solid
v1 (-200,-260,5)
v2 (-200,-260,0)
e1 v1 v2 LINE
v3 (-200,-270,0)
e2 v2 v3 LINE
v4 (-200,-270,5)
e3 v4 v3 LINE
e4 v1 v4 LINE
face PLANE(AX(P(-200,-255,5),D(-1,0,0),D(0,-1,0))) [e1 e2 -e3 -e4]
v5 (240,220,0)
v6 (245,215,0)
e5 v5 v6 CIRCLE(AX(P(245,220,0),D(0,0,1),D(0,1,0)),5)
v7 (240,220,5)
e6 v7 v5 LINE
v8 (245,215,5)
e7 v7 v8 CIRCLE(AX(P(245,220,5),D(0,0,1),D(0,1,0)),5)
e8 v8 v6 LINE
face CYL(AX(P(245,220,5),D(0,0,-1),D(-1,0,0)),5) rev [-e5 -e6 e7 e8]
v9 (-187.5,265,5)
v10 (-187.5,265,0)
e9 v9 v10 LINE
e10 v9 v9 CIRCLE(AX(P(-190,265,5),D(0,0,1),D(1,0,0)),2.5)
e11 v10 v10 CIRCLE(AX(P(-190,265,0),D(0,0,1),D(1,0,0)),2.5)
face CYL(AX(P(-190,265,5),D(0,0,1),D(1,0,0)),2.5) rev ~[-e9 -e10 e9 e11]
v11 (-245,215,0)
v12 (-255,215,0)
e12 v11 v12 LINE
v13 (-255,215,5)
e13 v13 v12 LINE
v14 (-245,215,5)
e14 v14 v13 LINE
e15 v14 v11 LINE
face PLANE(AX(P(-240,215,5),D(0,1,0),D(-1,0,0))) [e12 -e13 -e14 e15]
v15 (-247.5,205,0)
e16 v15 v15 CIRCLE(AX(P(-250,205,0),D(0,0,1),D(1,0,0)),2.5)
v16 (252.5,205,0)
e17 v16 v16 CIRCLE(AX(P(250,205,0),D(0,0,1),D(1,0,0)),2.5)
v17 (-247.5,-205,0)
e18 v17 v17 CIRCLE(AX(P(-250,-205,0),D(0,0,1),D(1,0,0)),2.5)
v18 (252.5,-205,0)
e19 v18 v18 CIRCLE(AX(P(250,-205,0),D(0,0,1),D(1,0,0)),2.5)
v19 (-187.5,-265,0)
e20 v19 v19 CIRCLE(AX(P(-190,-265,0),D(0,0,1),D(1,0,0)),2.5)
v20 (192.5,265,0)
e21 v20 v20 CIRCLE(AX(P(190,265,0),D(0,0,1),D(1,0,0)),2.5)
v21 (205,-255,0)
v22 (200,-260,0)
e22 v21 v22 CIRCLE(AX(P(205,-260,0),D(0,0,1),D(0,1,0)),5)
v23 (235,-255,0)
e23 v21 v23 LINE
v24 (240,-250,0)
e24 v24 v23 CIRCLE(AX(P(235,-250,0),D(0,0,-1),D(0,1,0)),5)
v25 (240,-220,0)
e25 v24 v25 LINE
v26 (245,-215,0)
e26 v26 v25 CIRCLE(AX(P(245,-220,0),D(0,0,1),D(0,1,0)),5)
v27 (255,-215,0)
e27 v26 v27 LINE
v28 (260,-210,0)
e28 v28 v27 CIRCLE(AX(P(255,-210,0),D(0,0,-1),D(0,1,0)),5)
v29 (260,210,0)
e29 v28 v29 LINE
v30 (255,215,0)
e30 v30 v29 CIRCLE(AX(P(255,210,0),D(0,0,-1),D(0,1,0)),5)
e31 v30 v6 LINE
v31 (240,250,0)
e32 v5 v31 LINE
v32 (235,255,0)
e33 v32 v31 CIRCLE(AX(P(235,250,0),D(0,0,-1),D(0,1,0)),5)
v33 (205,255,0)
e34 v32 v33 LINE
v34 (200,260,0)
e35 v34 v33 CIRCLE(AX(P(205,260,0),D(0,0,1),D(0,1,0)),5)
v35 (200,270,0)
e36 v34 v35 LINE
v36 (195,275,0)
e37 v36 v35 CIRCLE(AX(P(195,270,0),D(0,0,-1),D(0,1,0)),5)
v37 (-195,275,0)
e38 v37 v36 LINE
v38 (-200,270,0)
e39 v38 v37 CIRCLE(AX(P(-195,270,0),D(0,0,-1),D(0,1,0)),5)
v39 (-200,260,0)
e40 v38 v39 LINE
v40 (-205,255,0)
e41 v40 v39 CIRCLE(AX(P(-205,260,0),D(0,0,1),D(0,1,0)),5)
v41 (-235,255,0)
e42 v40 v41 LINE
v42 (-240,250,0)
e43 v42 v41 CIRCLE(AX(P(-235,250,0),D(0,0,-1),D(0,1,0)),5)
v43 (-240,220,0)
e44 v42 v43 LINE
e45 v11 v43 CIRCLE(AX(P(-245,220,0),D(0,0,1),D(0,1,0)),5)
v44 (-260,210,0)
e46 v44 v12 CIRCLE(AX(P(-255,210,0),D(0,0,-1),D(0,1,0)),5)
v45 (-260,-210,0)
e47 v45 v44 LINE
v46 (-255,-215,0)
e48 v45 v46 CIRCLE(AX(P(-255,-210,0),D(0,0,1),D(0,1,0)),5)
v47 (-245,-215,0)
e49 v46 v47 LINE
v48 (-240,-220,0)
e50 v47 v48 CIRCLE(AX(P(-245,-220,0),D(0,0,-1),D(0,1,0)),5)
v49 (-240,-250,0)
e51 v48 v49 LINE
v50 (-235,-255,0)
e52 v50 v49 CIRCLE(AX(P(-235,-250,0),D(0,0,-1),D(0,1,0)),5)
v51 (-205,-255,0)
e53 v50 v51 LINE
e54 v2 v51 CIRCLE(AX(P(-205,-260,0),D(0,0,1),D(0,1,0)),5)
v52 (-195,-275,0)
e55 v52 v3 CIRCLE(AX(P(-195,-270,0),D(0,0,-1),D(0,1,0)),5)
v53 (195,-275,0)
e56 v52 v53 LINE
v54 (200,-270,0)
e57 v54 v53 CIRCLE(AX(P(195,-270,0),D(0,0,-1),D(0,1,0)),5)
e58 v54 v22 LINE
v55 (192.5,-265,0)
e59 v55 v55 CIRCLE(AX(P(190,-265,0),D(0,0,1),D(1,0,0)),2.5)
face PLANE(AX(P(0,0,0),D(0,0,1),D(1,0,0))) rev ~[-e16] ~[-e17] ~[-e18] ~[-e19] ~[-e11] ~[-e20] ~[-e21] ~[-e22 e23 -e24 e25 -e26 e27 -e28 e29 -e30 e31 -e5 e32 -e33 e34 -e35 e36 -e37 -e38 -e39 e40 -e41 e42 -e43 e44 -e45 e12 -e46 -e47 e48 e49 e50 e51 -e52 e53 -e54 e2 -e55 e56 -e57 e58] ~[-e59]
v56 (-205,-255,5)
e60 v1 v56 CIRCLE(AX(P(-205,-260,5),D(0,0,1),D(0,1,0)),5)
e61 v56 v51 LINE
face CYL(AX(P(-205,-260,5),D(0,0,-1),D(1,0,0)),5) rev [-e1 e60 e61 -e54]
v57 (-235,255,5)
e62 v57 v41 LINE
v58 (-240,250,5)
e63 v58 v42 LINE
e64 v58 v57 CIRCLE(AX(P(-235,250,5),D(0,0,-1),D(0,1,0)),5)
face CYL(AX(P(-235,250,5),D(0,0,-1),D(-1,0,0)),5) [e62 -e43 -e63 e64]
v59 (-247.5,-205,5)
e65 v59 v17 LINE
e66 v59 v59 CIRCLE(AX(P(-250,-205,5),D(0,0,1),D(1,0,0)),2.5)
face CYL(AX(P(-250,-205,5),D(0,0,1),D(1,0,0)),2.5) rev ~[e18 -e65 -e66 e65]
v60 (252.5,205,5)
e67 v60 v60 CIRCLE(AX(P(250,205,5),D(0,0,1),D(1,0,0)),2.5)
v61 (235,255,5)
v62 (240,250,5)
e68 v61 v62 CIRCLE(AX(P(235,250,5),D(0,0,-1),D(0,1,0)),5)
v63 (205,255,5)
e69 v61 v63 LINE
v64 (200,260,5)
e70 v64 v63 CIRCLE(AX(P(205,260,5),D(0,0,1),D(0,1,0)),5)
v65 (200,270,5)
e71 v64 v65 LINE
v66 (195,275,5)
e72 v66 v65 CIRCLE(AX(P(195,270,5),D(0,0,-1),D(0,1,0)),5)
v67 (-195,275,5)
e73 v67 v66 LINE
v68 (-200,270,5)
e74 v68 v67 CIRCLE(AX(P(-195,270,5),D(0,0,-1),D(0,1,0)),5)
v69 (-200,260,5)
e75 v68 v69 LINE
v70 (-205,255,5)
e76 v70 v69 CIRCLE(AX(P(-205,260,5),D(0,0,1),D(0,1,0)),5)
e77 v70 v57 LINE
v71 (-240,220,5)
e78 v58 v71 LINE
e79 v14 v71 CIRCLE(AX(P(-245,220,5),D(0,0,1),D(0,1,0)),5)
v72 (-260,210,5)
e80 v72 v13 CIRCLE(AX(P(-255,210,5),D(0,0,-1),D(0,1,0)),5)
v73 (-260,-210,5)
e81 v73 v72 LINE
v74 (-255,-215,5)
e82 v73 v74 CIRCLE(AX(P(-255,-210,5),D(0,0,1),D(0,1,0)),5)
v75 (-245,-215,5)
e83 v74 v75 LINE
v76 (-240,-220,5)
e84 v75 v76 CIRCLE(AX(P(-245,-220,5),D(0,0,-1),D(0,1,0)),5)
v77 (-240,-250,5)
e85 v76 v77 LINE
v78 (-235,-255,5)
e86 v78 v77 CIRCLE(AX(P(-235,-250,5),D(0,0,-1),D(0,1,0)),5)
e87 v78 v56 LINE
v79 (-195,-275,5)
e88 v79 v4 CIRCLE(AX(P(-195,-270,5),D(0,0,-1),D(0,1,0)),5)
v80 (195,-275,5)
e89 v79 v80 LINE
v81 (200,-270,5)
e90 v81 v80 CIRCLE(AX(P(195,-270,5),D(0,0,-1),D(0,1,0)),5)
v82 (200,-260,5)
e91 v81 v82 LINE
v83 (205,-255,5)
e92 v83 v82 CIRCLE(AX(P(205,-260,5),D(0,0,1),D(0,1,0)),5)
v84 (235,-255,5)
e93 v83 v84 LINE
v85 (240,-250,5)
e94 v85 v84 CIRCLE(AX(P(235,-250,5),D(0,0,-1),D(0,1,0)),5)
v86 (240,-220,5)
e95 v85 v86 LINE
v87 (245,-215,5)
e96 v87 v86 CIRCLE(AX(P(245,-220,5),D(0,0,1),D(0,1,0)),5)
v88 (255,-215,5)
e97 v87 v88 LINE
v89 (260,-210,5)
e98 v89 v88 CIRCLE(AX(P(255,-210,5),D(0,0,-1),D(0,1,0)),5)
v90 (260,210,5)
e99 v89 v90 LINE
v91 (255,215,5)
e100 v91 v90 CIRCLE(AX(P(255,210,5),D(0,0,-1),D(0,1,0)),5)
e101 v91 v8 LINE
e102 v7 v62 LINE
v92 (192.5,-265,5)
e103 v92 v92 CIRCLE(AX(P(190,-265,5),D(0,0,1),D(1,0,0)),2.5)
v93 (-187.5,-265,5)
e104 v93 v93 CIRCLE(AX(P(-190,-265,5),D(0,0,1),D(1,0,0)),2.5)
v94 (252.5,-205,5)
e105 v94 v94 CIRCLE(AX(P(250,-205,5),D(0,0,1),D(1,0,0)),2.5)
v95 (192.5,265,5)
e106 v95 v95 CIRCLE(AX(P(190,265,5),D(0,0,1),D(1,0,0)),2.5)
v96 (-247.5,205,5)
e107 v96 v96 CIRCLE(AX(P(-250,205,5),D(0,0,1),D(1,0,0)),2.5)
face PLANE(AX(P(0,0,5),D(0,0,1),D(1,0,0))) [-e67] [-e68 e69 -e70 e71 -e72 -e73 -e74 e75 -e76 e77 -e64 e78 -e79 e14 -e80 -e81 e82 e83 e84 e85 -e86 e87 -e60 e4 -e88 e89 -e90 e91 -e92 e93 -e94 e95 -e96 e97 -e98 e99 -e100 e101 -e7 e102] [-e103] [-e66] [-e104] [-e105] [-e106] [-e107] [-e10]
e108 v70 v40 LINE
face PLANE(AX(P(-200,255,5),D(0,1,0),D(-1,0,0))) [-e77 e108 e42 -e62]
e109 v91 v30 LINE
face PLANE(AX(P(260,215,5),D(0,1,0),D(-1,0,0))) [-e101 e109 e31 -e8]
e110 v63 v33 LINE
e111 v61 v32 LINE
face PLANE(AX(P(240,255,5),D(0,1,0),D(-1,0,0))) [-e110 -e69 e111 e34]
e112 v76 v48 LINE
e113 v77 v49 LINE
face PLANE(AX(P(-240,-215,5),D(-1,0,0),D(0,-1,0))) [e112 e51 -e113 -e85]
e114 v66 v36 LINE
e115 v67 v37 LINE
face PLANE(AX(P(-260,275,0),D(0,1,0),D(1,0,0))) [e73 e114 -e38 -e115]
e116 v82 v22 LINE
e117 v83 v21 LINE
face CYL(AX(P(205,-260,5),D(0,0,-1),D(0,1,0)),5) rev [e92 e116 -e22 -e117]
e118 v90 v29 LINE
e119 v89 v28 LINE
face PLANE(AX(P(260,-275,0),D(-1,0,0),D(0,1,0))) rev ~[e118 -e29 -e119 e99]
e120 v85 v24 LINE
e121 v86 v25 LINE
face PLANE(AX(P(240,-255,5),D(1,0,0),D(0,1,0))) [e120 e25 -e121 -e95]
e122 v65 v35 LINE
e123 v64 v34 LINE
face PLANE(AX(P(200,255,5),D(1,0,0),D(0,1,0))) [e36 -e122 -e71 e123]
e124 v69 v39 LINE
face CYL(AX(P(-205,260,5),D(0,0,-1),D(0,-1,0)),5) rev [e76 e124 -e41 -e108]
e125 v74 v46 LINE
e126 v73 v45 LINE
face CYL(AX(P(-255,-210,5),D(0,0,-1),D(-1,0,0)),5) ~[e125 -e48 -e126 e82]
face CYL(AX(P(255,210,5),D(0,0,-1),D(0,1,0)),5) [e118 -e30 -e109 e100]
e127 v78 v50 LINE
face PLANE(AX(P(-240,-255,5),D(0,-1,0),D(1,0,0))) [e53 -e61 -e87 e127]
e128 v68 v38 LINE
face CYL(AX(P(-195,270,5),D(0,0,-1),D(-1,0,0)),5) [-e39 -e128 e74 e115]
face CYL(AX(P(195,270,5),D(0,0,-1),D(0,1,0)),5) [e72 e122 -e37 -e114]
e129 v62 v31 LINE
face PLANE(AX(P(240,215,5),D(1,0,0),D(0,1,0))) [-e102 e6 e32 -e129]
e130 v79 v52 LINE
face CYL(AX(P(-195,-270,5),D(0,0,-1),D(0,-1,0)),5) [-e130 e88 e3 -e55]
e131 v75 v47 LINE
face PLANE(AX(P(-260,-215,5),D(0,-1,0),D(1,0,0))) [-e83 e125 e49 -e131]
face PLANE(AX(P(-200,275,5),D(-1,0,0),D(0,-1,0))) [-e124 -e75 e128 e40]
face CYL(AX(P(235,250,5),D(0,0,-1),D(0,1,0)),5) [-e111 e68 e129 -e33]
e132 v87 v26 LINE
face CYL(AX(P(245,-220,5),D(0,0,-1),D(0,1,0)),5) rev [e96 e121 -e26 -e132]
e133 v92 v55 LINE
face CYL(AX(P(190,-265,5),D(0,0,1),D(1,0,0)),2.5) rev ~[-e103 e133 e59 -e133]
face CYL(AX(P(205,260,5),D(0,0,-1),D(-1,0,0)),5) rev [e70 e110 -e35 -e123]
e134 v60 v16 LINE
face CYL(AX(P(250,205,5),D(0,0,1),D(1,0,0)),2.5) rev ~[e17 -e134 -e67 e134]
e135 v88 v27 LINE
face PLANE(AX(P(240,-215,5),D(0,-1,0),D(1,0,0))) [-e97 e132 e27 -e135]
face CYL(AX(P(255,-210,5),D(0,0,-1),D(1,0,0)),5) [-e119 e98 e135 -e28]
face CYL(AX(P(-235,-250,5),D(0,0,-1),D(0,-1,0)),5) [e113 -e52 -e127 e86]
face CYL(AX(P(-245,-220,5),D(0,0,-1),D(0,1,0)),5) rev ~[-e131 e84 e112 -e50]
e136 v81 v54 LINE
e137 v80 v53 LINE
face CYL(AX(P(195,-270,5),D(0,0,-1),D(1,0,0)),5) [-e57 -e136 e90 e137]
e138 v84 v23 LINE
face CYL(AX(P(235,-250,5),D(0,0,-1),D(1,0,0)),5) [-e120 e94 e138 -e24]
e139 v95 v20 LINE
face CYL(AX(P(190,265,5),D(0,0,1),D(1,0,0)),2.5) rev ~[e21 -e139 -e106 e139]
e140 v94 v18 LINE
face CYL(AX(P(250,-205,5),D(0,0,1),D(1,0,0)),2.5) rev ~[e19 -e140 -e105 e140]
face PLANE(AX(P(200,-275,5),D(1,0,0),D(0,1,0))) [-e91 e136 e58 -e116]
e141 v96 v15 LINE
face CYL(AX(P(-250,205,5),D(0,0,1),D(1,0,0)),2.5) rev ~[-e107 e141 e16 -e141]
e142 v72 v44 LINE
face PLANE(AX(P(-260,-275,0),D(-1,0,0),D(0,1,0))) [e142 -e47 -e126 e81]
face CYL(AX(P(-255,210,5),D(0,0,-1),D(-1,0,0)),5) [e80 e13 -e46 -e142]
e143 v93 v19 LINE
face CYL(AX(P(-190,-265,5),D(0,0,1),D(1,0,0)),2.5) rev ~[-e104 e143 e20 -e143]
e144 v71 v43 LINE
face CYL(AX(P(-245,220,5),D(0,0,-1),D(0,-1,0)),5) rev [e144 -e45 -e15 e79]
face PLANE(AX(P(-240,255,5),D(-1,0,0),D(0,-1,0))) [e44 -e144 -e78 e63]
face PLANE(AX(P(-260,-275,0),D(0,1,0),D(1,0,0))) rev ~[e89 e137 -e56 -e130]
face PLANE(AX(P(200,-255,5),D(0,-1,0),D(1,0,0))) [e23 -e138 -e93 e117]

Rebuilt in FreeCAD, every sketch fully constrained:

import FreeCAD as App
import Part
import Sketcher
Q = App.Units.Quantity


def edges_at(feature, points):
    """Names of the edges that pass closest to the given points."""
    edges = feature.Shape.Edges
    near = lambda p: min(range(len(edges)), key=lambda i: edges[i].distToShape(Part.Vertex(*p))[0])
    return sorted({f"Edge{near(p) + 1}" for p in points})


def add_polygon(sketch, points):
    """Adds a closed chain of lines whose ends are joined by coincident constraints."""
    first, n = sketch.GeometryCount, len(points)
    for a, b in zip(points, points[1:] + points[:1]):
        sketch.addGeometry(Part.LineSegment(App.Vector(*a, 0), App.Vector(*b, 0)), False)
    for i in range(n):
        sketch.addConstraint(Sketcher.Constraint("Coincident", first + i, 2, first + (i + 1) % n, 1))

doc = App.newDocument("Part")
body = doc.addObject("PartDesign::Body", "Body")

sketch1 = body.newObject("Sketcher::SketchObject", "Sketch")
sketch1.AttachmentSupport = (doc.getObject("XY_Plane"), [""])
sketch1.MapMode = "FlatFace"
add_polygon(sketch1, [(-260, 275), (-260, -275), (260, -275), (260, 275)])
sketch1.addConstraint([
    Sketcher.Constraint("Vertical", 0),
    Sketcher.Constraint("Horizontal", 1),
    Sketcher.Constraint("Vertical", 2),
    Sketcher.Constraint("Horizontal", 3),
    Sketcher.Constraint("Symmetric", 0, 2, 2, 2, -1, 1),
    Sketcher.Constraint("DistanceX", 1, 1, 1, 2, Q("520 mm")),
    Sketcher.Constraint("DistanceY", 0, 2, 0, 1, Q("550 mm")),
])
pad1 = body.newObject("PartDesign::Pad", "Pad")
pad1.Profile = sketch1
pad1.Length = 5

sketch2 = body.newObject("Sketcher::SketchObject", "Sketch001")
sketch2.AttachmentSupport = (doc.getObject("XY_Plane"), [""])
sketch2.MapMode = "FlatFace"
sketch2.AttachmentOffset = App.Placement(App.Vector(0, 0, 5), App.Rotation())
sketch2.addGeometry(Part.Circle(App.Vector(-190, 265, 0), App.Vector(0, 0, 1), 2.5), False)
sketch2.addGeometry(Part.Circle(App.Vector(190, 265, 0), App.Vector(0, 0, 1), 2.5), False)
sketch2.addGeometry(Part.Circle(App.Vector(250, 205, 0), App.Vector(0, 0, 1), 2.5), False)
sketch2.addGeometry(Part.Circle(App.Vector(-250, 205, 0), App.Vector(0, 0, 1), 2.5), False)
sketch2.addGeometry(Part.Circle(App.Vector(-250, -205, 0), App.Vector(0, 0, 1), 2.5), False)
sketch2.addGeometry(Part.Circle(App.Vector(-190, -265, 0), App.Vector(0, 0, 1), 2.5), False)
sketch2.addGeometry(Part.Circle(App.Vector(190, -265, 0), App.Vector(0, 0, 1), 2.5), False)
sketch2.addGeometry(Part.Circle(App.Vector(250, -205, 0), App.Vector(0, 0, 1), 2.5), False)
add_polygon(sketch2, [(200, 255), (240, 255), (240, 215), (260, 215), (260, 275), (200, 275)])
add_polygon(sketch2, [(-240, 215), (-240, 255), (-200, 255), (-200, 275), (-260, 275), (-260, 215)])
add_polygon(sketch2, [(-200, -255), (-240, -255), (-240, -215), (-260, -215), (-260, -275), (-200, -275)])
add_polygon(sketch2, [(240, -215), (240, -255), (200, -255), (200, -275), (260, -275), (260, -215)])
sketch2.addConstraint([
    Sketcher.Constraint("Horizontal", 8),
    Sketcher.Constraint("Vertical", 9),
    Sketcher.Constraint("Horizontal", 10),
    Sketcher.Constraint("Vertical", 11),
    Sketcher.Constraint("Horizontal", 12),
    Sketcher.Constraint("Vertical", 13),
    Sketcher.Constraint("Vertical", 14),
    Sketcher.Constraint("Horizontal", 15),
    Sketcher.Constraint("Vertical", 16),
    Sketcher.Constraint("Horizontal", 17),
    Sketcher.Constraint("Vertical", 18),
    Sketcher.Constraint("Horizontal", 19),
    Sketcher.Constraint("Horizontal", 20),
    Sketcher.Constraint("Vertical", 21),
    Sketcher.Constraint("Horizontal", 22),
    Sketcher.Constraint("Vertical", 23),
    Sketcher.Constraint("Horizontal", 24),
    Sketcher.Constraint("Vertical", 25),
    Sketcher.Constraint("Vertical", 26),
    Sketcher.Constraint("Horizontal", 27),
    Sketcher.Constraint("Vertical", 28),
    Sketcher.Constraint("Horizontal", 29),
    Sketcher.Constraint("Vertical", 30),
    Sketcher.Constraint("Horizontal", 31),
    Sketcher.Constraint("Equal", 0, 1),
    Sketcher.Constraint("Equal", 1, 2),
    Sketcher.Constraint("Equal", 2, 3),
    Sketcher.Constraint("Equal", 3, 4),
    Sketcher.Constraint("Equal", 4, 5),
    Sketcher.Constraint("Equal", 5, 6),
    Sketcher.Constraint("Equal", 6, 7),
    Sketcher.Constraint("Symmetric", 2, 3, 4, 3, -1, 1),
    Sketcher.Constraint("Symmetric", 1, 3, 5, 3, -1, 1),
    Sketcher.Constraint("Symmetric", 0, 3, 6, 3, -1, 1),
    Sketcher.Constraint("Symmetric", 3, 3, 7, 3, -1, 1),
    Sketcher.Constraint("Symmetric", 8, 2, 20, 2, -1, 1),
    Sketcher.Constraint("Symmetric", 10, 2, 22, 2, -1, 1),
    Sketcher.Constraint("Symmetric", 12, 2, 24, 2, -1, 1),
    Sketcher.Constraint("Symmetric", 14, 2, 26, 2, -1, 1),
    Sketcher.Constraint("Symmetric", 16, 2, 28, 2, -1, 1),
    Sketcher.Constraint("Symmetric", 18, 2, 30, 2, -1, 1),
    Sketcher.Constraint("Symmetric", 0, 3, 1, 3, -2),
    Sketcher.Constraint("Symmetric", 2, 3, 3, 3, -2),
    Sketcher.Constraint("Symmetric", 8, 2, 14, 2, -2),
    Sketcher.Constraint("Symmetric", 12, 2, 16, 2, -2),
    Sketcher.Constraint("Symmetric", 10, 2, 18, 2, -2),
    Sketcher.Constraint("Equal", 27, 9),
    Sketcher.Constraint("Equal", 29, 11),
    Sketcher.Constraint("Diameter", 0, Q("5 mm")),
    Sketcher.Constraint("DistanceX", 8, 1, 8, 2, Q("40 mm")),
    Sketcher.Constraint("DistanceX", 10, 1, 10, 2, Q("20 mm")),
    Sketcher.Constraint("DistanceX", 0, 3, -1, 1, Q("190 mm")),
    Sketcher.Constraint("DistanceY", -1, 1, 0, 3, Q("265 mm")),
    Sketcher.Constraint("DistanceX", -1, 1, 2, 3, Q("250 mm")),
    Sketcher.Constraint("DistanceY", -1, 1, 2, 3, Q("205 mm")),
    Sketcher.Constraint("DistanceX", -1, 1, 8, 2, Q("240 mm")),
    Sketcher.Constraint("DistanceY", -1, 1, 8, 2, Q("255 mm")),
])
pocket1 = body.newObject("PartDesign::Pocket", "Pocket")
pocket1.Profile = sketch2
pocket1.Type = "ThroughAll"
doc.recompute()

fillet = body.newObject("PartDesign::Fillet", "Fillet")
fillet.Base = (pocket1, edges_at(pocket1, [
    (260, 215, 2.5),
    (240, 215, 2.5),
    (240, 255, 2.5),
    (200, 255, 2.5),
    (200, 275, 2.5),
    (-200, 275, 2.5),
    (-200, 255, 2.5),
    (-240, 255, 2.5),
    (-240, 215, 2.5),
    (-260, 215, 2.5),
    (-260, -215, 2.5),
    (-240, -215, 2.5),
    (-240, -255, 2.5),
    (-200, -255, 2.5),
    (-200, -275, 2.5),
    (200, -275, 2.5),
    (200, -255, 2.5),
    (240, -255, 2.5),
    (240, -215, 2.5),
    (260, -215, 2.5),
]))
fillet.Radius = 5

doc.recompute()
